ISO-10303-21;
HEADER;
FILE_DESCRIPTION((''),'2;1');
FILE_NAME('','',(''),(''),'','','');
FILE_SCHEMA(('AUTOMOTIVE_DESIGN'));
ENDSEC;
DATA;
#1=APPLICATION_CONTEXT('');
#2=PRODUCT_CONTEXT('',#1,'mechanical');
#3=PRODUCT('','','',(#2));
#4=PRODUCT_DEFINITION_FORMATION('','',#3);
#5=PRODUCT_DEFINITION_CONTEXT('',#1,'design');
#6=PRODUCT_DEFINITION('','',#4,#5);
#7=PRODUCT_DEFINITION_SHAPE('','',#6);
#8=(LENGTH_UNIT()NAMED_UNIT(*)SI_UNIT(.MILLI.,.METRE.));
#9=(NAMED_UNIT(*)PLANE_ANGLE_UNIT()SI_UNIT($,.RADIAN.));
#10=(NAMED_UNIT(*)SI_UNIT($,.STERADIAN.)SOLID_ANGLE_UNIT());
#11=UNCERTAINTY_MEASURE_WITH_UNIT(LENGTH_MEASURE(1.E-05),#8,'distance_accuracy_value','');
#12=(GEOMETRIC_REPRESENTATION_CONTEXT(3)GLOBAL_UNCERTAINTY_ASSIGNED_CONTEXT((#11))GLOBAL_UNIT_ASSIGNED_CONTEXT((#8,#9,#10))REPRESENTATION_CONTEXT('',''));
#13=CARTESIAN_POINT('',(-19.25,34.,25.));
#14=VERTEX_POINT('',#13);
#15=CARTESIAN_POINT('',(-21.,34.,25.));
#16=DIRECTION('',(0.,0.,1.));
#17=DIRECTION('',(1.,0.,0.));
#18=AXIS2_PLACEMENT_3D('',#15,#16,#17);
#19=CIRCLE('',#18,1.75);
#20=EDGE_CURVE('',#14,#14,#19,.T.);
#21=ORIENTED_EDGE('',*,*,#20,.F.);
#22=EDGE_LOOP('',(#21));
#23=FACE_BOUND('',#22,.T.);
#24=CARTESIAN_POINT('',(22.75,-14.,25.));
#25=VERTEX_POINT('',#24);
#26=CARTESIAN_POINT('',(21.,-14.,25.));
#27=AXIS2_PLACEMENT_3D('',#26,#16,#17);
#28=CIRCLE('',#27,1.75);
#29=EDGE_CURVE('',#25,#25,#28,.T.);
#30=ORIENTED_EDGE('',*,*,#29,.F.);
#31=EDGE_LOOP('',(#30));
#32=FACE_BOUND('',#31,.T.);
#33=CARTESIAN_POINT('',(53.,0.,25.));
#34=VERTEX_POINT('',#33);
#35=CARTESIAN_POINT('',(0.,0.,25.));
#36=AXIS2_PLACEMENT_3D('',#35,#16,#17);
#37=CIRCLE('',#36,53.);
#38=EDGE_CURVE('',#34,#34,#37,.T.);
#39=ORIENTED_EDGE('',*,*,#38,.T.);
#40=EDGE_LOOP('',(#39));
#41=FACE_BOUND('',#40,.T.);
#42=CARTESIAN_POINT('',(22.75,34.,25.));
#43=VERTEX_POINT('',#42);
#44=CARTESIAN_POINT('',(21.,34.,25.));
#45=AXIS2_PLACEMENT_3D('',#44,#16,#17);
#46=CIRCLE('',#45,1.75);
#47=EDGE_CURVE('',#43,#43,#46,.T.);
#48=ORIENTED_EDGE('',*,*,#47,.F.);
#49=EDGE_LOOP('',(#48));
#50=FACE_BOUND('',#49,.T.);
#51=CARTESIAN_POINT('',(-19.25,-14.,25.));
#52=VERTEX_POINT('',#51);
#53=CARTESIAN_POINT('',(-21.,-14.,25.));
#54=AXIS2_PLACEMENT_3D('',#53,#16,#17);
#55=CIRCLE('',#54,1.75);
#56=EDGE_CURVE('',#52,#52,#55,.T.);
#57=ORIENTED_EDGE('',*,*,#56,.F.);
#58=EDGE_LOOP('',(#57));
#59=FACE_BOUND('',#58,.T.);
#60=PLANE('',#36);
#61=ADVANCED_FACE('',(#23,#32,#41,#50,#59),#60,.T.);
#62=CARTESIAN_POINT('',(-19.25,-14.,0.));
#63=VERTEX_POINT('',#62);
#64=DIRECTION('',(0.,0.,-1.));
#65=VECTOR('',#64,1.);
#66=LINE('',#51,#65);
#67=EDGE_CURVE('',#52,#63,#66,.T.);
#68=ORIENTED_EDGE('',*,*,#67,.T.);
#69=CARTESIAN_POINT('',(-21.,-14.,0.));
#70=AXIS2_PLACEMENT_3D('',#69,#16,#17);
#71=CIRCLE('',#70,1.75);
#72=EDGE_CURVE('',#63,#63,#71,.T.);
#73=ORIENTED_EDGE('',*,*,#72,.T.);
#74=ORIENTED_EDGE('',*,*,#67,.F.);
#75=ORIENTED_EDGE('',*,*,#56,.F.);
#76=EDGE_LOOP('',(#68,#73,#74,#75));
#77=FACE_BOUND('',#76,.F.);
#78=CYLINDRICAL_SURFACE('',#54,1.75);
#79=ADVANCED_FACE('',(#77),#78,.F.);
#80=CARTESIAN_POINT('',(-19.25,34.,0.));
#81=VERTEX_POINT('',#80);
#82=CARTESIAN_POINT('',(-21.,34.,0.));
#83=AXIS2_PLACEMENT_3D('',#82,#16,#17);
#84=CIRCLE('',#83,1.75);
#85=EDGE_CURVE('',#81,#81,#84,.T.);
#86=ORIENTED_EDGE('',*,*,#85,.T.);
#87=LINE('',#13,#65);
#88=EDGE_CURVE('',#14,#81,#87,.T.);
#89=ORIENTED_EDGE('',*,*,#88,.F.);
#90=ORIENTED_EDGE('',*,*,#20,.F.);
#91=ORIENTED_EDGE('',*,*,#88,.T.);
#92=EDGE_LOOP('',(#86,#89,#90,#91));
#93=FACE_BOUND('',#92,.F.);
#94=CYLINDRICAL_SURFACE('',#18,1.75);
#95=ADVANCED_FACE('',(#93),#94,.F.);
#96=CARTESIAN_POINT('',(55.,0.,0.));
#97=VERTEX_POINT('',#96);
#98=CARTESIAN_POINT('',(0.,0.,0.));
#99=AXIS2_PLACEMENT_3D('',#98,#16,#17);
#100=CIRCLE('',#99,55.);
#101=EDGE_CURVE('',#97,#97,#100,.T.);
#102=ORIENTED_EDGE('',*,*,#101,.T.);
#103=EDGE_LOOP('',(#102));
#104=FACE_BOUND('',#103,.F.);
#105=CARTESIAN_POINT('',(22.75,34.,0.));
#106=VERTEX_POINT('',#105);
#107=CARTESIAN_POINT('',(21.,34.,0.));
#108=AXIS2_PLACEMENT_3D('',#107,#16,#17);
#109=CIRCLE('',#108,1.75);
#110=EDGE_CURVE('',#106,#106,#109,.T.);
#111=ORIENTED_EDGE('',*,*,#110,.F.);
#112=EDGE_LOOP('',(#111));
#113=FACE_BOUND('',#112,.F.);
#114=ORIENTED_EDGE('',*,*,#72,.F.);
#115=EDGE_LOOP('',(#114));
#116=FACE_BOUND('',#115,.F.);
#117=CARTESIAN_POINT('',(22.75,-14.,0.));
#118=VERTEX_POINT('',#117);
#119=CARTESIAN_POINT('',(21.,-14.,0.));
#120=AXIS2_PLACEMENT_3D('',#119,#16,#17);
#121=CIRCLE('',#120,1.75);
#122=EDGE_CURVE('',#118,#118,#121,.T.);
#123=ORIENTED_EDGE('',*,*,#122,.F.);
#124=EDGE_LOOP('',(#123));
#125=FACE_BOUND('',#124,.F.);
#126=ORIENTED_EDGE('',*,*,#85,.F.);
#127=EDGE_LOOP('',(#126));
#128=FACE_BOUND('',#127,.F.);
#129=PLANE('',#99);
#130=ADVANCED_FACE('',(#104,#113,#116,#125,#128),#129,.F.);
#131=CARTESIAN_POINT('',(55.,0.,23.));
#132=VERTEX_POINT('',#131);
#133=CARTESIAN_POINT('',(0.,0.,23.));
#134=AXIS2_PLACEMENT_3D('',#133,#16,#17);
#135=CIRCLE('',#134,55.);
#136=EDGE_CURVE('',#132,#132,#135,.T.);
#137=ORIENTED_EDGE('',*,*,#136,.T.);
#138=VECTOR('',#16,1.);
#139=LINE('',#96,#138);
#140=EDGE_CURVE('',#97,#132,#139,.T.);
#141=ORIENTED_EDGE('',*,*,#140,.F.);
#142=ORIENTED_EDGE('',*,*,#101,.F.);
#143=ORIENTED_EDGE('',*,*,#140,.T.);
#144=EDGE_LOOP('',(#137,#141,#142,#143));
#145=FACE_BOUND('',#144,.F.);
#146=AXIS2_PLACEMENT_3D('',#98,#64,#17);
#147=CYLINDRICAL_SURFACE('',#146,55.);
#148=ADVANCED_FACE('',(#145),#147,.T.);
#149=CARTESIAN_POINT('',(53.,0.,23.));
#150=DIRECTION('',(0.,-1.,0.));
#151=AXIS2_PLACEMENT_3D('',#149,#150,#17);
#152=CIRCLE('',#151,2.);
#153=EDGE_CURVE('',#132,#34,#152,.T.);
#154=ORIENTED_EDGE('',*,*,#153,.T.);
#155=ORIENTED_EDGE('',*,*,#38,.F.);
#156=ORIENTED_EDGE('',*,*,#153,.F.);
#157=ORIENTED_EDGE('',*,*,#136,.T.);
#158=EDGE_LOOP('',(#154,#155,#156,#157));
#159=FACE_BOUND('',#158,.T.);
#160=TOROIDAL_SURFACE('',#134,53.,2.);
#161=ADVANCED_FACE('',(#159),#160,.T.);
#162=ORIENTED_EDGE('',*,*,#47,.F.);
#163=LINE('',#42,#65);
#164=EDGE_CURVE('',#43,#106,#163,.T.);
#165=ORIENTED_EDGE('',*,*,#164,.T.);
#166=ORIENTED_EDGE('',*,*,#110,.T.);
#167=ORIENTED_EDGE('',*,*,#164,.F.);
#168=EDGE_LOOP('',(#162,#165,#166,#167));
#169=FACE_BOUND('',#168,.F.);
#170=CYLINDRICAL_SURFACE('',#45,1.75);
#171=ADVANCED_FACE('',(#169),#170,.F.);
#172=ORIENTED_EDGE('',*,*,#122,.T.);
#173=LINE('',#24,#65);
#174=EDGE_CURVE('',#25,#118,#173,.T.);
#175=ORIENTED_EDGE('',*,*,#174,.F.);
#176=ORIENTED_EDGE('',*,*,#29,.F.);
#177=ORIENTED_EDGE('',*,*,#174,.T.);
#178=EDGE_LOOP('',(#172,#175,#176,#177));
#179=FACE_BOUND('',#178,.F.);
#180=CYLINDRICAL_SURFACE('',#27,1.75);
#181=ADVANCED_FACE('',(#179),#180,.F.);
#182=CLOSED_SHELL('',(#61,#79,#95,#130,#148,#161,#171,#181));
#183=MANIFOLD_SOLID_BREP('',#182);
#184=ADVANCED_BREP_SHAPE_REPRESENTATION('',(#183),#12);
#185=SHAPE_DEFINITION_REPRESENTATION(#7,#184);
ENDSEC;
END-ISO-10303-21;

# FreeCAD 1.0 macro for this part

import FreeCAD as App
import Part
import Sketcher


def edges_at(feature, points):
    """Names of the edges that pass closest to the given points."""
    edges = feature.Shape.Edges
    near = lambda p: min(range(len(edges)), key=lambda i: edges[i].distToShape(Part.Vertex(*p))[0])
    return sorted({f"Edge{near(p) + 1}" for p in points})

doc = App.newDocument("Part")
body = doc.addObject("PartDesign::Body", "Body")

# Sketch on XY plane
sketch1 = body.newObject("Sketcher::SketchObject", "Sketch")
sketch1.AttachmentSupport = (doc.getObject("XY_Plane"), [""])
sketch1.MapMode = "FlatFace"
sketch1.addGeometry(Part.Circle(App.Vector(0, 0, 0), App.Vector(0, 0, 1), 55), False)
sketch1.addConstraint(Sketcher.Constraint("Coincident", 0, 3, -1, 1))
sketch1.addConstraint(Sketcher.Constraint("Diameter", 0, 110.0))
pad1 = body.newObject("PartDesign::Pad", "Pad")
pad1.Profile = sketch1
pad1.Length = 25
doc.recompute()

fillet = body.newObject("PartDesign::Fillet", "Fillet")
fillet.Base = (pad1, edges_at(pad1, [(-55, 0, 25)]))
fillet.Radius = 2

# Sketch on XY plane
sketch2 = body.newObject("Sketcher::SketchObject", "Sketch001")
sketch2.AttachmentSupport = (doc.getObject("XY_Plane"), [""])
sketch2.MapMode = "FlatFace"
sketch2.AttachmentOffset = App.Placement(App.Vector(0, 0, 25), App.Rotation())
sketch2.addGeometry(Part.Circle(App.Vector(-21, 34, 0), App.Vector(0, 0, 1), 1.8), False)
sketch2.addGeometry(Part.Circle(App.Vector(21, 34, 0), App.Vector(0, 0, 1), 1.8), False)
sketch2.addGeometry(Part.Circle(App.Vector(21, -14, 0), App.Vector(0, 0, 1), 1.8), False)
sketch2.addGeometry(Part.Circle(App.Vector(-21, -14, 0), App.Vector(0, 0, 1), 1.8), False)
sketch2.addConstraint(Sketcher.Constraint("Equal", 0, 1))
sketch2.addConstraint(Sketcher.Constraint("Equal", 1, 2))
sketch2.addConstraint(Sketcher.Constraint("Equal", 2, 3))
sketch2.addConstraint(Sketcher.Constraint("Symmetric", 0, 3, 1, 3, -2))
sketch2.addConstraint(Sketcher.Constraint("Symmetric", 2, 3, 3, 3, -2))
sketch2.addConstraint(Sketcher.Constraint("Vertical", 1, 3, 2, 3))
sketch2.addConstraint(Sketcher.Constraint("Diameter", 0, 3.5))
sketch2.addConstraint(Sketcher.Constraint("DistanceX", 0, 3, -1, 1, 21.0))
sketch2.addConstraint(Sketcher.Constraint("DistanceY", -1, 1, 0, 3, 34.0))
sketch2.addConstraint(Sketcher.Constraint("DistanceY", 2, 3, -1, 1, 14.0))
pocket1 = body.newObject("PartDesign::Pocket", "Pocket")
pocket1.Profile = sketch2
pocket1.Type = "ThroughAll"

doc.recompute()
